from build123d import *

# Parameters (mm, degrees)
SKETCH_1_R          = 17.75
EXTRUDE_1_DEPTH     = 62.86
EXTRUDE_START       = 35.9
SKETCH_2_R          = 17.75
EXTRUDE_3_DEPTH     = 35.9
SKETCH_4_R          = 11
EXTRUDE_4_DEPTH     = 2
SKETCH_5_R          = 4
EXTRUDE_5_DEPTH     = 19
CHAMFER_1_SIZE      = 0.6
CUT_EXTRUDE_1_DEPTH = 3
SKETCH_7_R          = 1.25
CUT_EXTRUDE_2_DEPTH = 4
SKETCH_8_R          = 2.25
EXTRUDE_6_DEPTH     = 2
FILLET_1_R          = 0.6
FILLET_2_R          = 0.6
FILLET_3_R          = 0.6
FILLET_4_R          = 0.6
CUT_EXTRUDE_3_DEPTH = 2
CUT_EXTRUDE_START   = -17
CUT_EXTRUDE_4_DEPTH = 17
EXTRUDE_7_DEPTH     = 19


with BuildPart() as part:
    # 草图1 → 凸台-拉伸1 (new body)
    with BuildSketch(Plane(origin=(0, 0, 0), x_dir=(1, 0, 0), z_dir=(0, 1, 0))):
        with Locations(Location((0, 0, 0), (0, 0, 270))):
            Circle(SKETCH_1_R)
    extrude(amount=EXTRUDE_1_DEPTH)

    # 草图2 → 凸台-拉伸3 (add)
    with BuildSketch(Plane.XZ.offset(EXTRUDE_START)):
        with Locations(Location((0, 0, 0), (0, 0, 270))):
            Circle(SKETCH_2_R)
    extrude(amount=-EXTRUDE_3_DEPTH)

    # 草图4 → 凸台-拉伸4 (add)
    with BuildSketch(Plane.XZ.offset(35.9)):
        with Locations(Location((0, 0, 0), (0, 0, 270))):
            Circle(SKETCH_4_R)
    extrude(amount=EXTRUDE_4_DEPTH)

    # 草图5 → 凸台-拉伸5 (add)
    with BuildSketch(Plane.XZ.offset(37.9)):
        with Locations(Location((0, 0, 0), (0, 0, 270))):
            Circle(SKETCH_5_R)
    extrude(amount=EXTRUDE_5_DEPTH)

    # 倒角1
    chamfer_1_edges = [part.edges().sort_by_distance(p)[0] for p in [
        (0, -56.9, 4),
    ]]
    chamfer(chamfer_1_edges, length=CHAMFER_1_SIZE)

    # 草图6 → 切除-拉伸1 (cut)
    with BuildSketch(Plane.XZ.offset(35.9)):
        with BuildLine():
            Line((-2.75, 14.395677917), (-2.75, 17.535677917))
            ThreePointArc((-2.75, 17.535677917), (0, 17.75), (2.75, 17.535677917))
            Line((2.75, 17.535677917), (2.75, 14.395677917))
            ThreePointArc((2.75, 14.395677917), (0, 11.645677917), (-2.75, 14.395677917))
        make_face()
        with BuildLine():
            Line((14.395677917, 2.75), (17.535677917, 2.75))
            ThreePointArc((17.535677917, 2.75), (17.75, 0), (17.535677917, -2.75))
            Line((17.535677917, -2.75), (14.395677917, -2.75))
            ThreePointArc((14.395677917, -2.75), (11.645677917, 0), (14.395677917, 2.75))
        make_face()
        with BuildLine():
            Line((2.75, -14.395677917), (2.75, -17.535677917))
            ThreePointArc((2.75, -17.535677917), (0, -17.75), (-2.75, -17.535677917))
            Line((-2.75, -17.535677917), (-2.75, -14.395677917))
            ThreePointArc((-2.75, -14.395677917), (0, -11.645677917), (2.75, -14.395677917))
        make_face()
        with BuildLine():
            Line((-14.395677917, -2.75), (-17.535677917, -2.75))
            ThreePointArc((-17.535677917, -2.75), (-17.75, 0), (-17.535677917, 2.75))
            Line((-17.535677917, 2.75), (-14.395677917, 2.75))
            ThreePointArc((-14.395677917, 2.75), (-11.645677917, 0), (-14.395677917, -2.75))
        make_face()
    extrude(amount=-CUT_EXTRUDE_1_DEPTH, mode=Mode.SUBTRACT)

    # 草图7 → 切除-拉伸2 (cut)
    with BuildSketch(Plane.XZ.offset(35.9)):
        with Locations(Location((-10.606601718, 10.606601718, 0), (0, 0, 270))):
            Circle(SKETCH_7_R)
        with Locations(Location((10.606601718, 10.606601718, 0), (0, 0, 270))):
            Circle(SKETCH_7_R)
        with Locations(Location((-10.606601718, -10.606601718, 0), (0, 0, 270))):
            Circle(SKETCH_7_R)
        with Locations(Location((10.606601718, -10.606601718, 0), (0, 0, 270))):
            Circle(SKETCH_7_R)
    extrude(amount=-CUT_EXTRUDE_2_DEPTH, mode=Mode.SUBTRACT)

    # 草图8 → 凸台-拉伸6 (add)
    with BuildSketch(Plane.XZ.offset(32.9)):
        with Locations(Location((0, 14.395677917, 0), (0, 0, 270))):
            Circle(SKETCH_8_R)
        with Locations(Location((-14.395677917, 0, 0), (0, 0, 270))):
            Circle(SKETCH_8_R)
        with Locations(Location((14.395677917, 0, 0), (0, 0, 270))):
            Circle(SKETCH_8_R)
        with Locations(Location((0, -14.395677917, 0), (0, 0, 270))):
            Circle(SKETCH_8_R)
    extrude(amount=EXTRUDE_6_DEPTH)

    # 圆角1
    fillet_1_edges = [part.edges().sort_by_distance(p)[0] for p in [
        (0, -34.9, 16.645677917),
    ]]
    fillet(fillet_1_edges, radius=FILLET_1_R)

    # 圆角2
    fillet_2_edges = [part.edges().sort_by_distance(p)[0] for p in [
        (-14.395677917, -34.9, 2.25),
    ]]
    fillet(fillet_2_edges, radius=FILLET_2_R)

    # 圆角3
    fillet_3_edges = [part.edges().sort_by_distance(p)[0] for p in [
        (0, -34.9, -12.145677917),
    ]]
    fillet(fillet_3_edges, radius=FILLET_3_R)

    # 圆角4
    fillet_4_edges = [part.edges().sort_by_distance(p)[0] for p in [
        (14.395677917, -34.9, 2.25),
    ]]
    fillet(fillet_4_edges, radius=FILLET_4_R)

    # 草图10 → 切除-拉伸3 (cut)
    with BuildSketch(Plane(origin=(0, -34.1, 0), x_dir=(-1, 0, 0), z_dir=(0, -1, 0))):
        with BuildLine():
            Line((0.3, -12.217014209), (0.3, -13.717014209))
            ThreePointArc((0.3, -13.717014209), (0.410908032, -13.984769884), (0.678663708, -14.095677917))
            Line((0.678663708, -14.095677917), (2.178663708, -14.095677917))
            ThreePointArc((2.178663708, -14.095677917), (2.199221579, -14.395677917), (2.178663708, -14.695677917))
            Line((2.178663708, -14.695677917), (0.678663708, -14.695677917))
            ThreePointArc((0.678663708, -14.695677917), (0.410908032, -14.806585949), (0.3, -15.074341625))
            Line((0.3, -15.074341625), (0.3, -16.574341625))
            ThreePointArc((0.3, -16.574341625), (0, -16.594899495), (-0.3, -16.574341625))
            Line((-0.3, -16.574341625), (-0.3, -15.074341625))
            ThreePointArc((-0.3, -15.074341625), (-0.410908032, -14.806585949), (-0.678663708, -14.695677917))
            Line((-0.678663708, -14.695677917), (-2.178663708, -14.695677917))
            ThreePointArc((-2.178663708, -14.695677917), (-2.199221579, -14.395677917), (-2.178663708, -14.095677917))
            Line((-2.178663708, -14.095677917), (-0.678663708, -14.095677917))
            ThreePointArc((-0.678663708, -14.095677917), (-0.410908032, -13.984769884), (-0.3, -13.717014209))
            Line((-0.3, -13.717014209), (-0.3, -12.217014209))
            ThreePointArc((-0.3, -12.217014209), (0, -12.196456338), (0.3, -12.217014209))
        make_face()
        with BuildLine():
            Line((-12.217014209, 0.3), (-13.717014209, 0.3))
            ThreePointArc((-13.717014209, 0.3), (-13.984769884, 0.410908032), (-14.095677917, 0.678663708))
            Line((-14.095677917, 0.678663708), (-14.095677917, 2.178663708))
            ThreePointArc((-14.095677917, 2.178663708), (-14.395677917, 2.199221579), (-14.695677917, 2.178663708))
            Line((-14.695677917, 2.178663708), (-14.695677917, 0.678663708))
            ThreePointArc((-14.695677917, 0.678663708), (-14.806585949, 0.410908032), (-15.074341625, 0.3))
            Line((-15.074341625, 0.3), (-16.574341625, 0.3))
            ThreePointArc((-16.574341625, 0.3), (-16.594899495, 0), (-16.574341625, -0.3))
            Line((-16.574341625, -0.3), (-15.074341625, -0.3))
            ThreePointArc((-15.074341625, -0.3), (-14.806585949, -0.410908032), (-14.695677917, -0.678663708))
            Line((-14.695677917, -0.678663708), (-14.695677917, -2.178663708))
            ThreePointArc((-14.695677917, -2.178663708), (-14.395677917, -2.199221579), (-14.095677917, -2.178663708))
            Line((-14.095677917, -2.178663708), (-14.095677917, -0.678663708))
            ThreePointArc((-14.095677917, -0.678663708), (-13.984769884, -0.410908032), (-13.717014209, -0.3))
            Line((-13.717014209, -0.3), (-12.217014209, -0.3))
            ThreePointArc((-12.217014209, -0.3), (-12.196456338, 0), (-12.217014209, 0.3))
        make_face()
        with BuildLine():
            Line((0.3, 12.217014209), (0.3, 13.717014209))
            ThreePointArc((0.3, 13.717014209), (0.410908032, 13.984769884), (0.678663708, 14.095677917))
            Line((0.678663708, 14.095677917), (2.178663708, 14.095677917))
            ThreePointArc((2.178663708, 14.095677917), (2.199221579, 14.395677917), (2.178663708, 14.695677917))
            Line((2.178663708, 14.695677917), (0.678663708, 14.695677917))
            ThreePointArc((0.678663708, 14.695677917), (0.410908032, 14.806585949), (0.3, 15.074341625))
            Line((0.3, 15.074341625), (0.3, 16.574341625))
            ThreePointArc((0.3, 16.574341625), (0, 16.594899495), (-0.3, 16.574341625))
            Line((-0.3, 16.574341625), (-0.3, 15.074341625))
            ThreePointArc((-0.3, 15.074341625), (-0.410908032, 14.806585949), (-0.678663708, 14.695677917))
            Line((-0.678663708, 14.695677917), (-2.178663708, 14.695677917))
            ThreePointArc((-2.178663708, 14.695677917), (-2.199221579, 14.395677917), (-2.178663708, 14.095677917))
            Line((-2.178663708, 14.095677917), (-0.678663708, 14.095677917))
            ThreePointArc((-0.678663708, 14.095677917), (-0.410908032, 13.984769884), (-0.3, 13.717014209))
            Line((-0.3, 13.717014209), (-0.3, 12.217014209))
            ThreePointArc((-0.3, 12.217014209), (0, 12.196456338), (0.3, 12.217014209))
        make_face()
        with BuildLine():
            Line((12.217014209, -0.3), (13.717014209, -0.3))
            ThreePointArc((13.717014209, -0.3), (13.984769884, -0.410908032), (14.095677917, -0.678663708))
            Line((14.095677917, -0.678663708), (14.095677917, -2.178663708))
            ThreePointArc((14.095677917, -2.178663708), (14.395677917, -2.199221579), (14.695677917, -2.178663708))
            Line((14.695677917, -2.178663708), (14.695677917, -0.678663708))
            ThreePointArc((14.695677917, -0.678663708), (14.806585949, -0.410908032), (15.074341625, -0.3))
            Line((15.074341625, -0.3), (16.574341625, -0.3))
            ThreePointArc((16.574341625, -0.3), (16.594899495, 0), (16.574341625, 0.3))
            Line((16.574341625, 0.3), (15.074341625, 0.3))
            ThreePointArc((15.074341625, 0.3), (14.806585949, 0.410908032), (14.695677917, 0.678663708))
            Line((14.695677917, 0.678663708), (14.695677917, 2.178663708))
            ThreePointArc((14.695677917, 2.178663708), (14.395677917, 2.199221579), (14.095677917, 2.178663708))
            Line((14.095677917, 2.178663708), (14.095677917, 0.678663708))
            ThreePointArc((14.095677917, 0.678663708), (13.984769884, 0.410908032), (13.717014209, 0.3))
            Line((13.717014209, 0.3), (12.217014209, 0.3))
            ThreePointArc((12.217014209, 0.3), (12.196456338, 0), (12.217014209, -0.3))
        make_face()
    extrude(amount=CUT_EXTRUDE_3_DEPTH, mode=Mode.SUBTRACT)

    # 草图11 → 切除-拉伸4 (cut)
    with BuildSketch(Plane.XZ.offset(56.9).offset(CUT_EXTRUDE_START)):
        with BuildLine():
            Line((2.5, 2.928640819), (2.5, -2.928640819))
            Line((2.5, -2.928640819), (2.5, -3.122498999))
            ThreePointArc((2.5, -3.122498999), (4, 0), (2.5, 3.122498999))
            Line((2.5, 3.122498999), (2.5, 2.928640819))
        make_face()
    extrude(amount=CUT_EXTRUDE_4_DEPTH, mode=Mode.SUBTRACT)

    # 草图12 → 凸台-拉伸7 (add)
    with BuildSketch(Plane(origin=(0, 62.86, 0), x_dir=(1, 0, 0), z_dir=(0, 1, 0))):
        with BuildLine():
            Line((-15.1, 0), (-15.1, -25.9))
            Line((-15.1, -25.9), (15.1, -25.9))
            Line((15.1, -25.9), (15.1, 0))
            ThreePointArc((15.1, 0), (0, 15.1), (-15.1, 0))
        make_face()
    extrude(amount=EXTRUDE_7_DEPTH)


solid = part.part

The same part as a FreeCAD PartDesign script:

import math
import FreeCAD as App
import Part
import Sketcher

V = App.Vector
Q = App.Units.Quantity


def edges_at(feature, points):
    """Names of the edges that pass closest to the given points."""
    edges = feature.Shape.Edges
    near = lambda p: min(range(len(edges)), key=lambda i: edges[i].distToShape(Part.Vertex(*p))[0])
    return sorted({f"Edge{near(p) + 1}" for p in points})

doc = App.newDocument("Part")
body = doc.addObject("PartDesign::Body", "Body")

sketch1 = body.newObject("Sketcher::SketchObject", "Sketch")
sketch1.AttachmentSupport = (doc.getObject("XZ_Plane"), [""])
sketch1.MapMode = "FlatFace"
sketch1.addGeometry(Part.Circle(V(0, 0, 0), V(0, 0, 1), 17.75), False)
sketch1.addConstraint([
    Sketcher.Constraint("Coincident", 0, 3, -1, 1),
    Sketcher.Constraint("Diameter", 0, Q("35.5 mm")),
])
pad1 = body.newObject("PartDesign::Pad", "Pad")
pad1.Profile = sketch1
pad1.Length = 62.86
pad1.Reversed = True

sketch2 = body.newObject("Sketcher::SketchObject", "Sketch001")
sketch2.AttachmentSupport = (doc.getObject("XZ_Plane"), [""])
sketch2.MapMode = "FlatFace"
sketch2.AttachmentOffset = App.Placement(V(0, 0, 35.9), App.Rotation())
sketch2.addGeometry(Part.Circle(V(0, 0, 0), V(0, 0, 1), 17.75), False)
sketch2.addConstraint([
    Sketcher.Constraint("Coincident", 0, 3, -1, 1),
    Sketcher.Constraint("Diameter", 0, Q("35.5 mm")),
])
pad2 = body.newObject("PartDesign::Pad", "Pad001")
pad2.Profile = sketch2
pad2.Length = 35.9
pad2.Reversed = True

sketch3 = body.newObject("Sketcher::SketchObject", "Sketch002")
sketch3.AttachmentSupport = (doc.getObject("XZ_Plane"), [""])
sketch3.MapMode = "FlatFace"
sketch3.AttachmentOffset = App.Placement(V(0, 0, 35.9), App.Rotation())
sketch3.addGeometry(Part.Circle(V(0, 0, 0), V(0, 0, 1), 11), False)
sketch3.addConstraint([
    Sketcher.Constraint("Coincident", 0, 3, -1, 1),
    Sketcher.Constraint("Diameter", 0, Q("22 mm")),
])
pad3 = body.newObject("PartDesign::Pad", "Pad002")
pad3.Profile = sketch3
pad3.Length = 2

sketch4 = body.newObject("Sketcher::SketchObject", "Sketch003")
sketch4.AttachmentSupport = (doc.getObject("XZ_Plane"), [""])
sketch4.MapMode = "FlatFace"
sketch4.AttachmentOffset = App.Placement(V(0, 0, 37.9), App.Rotation())
sketch4.addGeometry(Part.Circle(V(0, 0, 0), V(0, 0, 1), 4), False)
sketch4.addConstraint([
    Sketcher.Constraint("Coincident", 0, 3, -1, 1),
    Sketcher.Constraint("Diameter", 0, Q("8 mm")),
])
pad4 = body.newObject("PartDesign::Pad", "Pad003")
pad4.Profile = sketch4
pad4.Length = 19
doc.recompute()

chamfer = body.newObject("PartDesign::Chamfer", "Chamfer")
chamfer.Base = (pad4, edges_at(pad4, [(0, -56.9, 4)]))
chamfer.Size = 0.6

sketch5 = body.newObject("Sketcher::SketchObject", "Sketch004")
sketch5.AttachmentSupport = (doc.getObject("XZ_Plane"), [""])
sketch5.MapMode = "FlatFace"
sketch5.AttachmentOffset = App.Placement(V(0, 0, 35.9), App.Rotation())
sketch5.addGeometry([
    Part.LineSegment(V(-2.75, 17.535678, 0), V(-2.75, 14.395678, 0)),
    Part.ArcOfCircle(Part.Circle(V(0, 14.395678, 0), V(0, 0, 1), 2.75), math.radians(180), math.radians(360)),
    Part.LineSegment(V(2.75, 14.395678, 0), V(2.75, 17.535678, 0)),
    Part.ArcOfCircle(Part.Circle(V(0, 0, 0), V(0, 0, 1), 17.75), math.radians(81.087288), math.radians(98.912712)),
    Part.LineSegment(V(17.535678, 2.75, 0), V(14.395678, 2.75, 0)),
    Part.ArcOfCircle(Part.Circle(V(14.395678, 0, 0), V(0, 0, 1), 2.75), math.radians(90), math.radians(270)),
    Part.LineSegment(V(14.395678, -2.75, 0), V(17.535678, -2.75, 0)),
    Part.ArcOfCircle(Part.Circle(V(0, 0, 0), V(0, 0, 1), 17.75), math.radians(-8.912712), math.radians(8.912712)),
    Part.LineSegment(V(2.75, -17.535678, 0), V(2.75, -14.395678, 0)),
    Part.ArcOfCircle(Part.Circle(V(0, -14.395678, 0), V(0, 0, 1), 2.75), math.radians(0), math.radians(180)),
    Part.LineSegment(V(-2.75, -14.395678, 0), V(-2.75, -17.535678, 0)),
    Part.ArcOfCircle(Part.Circle(V(0, 0, 0), V(0, 0, 1), 17.75), math.radians(-98.912712), math.radians(-81.087288)),
    Part.LineSegment(V(-17.535678, -2.75, 0), V(-14.395678, -2.75, 0)),
    Part.ArcOfCircle(Part.Circle(V(-14.395678, 0, 0), V(0, 0, 1), 2.75), math.radians(-90), math.radians(90)),
    Part.LineSegment(V(-14.395678, 2.75, 0), V(-17.535678, 2.75, 0)),
    Part.ArcOfCircle(Part.Circle(V(0, 0, 0), V(0, 0, 1), 17.75), math.radians(171.087288), math.radians(188.912712)),
], False)
sketch5.addConstraint([
    Sketcher.Constraint("Tangent", 0, 2, 1, 1),
    Sketcher.Constraint("Tangent", 1, 2, 2, 1),
    Sketcher.Constraint("Coincident", 2, 2, 3, 1),
    Sketcher.Constraint("Coincident", 3, 2, 0, 1),
    Sketcher.Constraint("Tangent", 4, 2, 5, 1),
    Sketcher.Constraint("Tangent", 5, 2, 6, 1),
    Sketcher.Constraint("Coincident", 6, 2, 7, 1),
    Sketcher.Constraint("Coincident", 7, 2, 4, 1),
    Sketcher.Constraint("Tangent", 8, 2, 9, 1),
    Sketcher.Constraint("Tangent", 9, 2, 10, 1),
    Sketcher.Constraint("Coincident", 10, 2, 11, 1),
    Sketcher.Constraint("Coincident", 11, 2, 8, 1),
    Sketcher.Constraint("Tangent", 12, 2, 13, 1),
    Sketcher.Constraint("Tangent", 13, 2, 14, 1),
    Sketcher.Constraint("Coincident", 14, 2, 15, 1),
    Sketcher.Constraint("Coincident", 15, 2, 12, 1),
    Sketcher.Constraint("Vertical", 0),
    Sketcher.Constraint("Vertical", 2),
    Sketcher.Constraint("Horizontal", 4),
    Sketcher.Constraint("Horizontal", 6),
    Sketcher.Constraint("Vertical", 8),
    Sketcher.Constraint("Vertical", 10),
    Sketcher.Constraint("Horizontal", 12),
    Sketcher.Constraint("Horizontal", 14),
    Sketcher.Constraint("Coincident", 3, 3, -1, 1),
    Sketcher.Constraint("Coincident", 7, 3, -1, 1),
    Sketcher.Constraint("Coincident", 11, 3, -1, 1),
    Sketcher.Constraint("Coincident", 15, 3, -1, 1),
    Sketcher.Constraint("Equal", 1, 5),
    Sketcher.Constraint("Equal", 3, 7),
    Sketcher.Constraint("Equal", 5, 9),
    Sketcher.Constraint("Equal", 7, 11),
    Sketcher.Constraint("Equal", 9, 13),
    Sketcher.Constraint("Equal", 11, 15),
    Sketcher.Constraint("Symmetric", 1, 3, 9, 3, -1, 1),
    Sketcher.Constraint("Symmetric", 5, 3, 13, 3, -1, 1),
    Sketcher.Constraint("PointOnObject", 1, 3, -2),
    Sketcher.Constraint("PointOnObject", 5, 3, -1),
    Sketcher.Constraint("Equal", 14, 0),
    Sketcher.Constraint("Radius", 1, Q("2.75 mm")),
    Sketcher.Constraint("Radius", 3, Q("17.75 mm")),
    Sketcher.Constraint("DistanceX", 4, 2, 4, 1, Q("3.14 mm")),
])
pocket1 = body.newObject("PartDesign::Pocket", "Pocket")
pocket1.Profile = sketch5
pocket1.Length = 3

sketch6 = body.newObject("Sketcher::SketchObject", "Sketch005")
sketch6.AttachmentSupport = (doc.getObject("XZ_Plane"), [""])
sketch6.MapMode = "FlatFace"
sketch6.AttachmentOffset = App.Placement(V(0, 0, 35.9), App.Rotation())
sketch6.addGeometry([
    Part.Circle(V(-10.606602, 10.606602, 0), V(0, 0, 1), 1.25),
    Part.Circle(V(10.606602, 10.606602, 0), V(0, 0, 1), 1.25),
    Part.Circle(V(-10.606602, -10.606602, 0), V(0, 0, 1), 1.25),
    Part.Circle(V(10.606602, -10.606602, 0), V(0, 0, 1), 1.25),
], False)
sketch6.addConstraint([
    Sketcher.Constraint("Equal", 0, 1),
    Sketcher.Constraint("Equal", 1, 2),
    Sketcher.Constraint("Equal", 2, 3),
    Sketcher.Constraint("Symmetric", 1, 3, 2, 3, -1, 1),
    Sketcher.Constraint("Symmetric", 0, 3, 3, 3, -1, 1),
    Sketcher.Constraint("Symmetric", 0, 3, 1, 3, -2),
    Sketcher.Constraint("Diameter", 0, Q("2.5 mm")),
    Sketcher.Constraint("DistanceX", 0, 3, -1, 1, Q("10.606602 mm")),
    Sketcher.Constraint("DistanceY", -1, 1, 0, 3, Q("10.606602 mm")),
])
pocket2 = body.newObject("PartDesign::Pocket", "Pocket001")
pocket2.Profile = sketch6
pocket2.Length = 4

sketch7 = body.newObject("Sketcher::SketchObject", "Sketch006")
sketch7.AttachmentSupport = (doc.getObject("XZ_Plane"), [""])
sketch7.MapMode = "FlatFace"
sketch7.AttachmentOffset = App.Placement(V(0, 0, 32.9), App.Rotation())
sketch7.addGeometry([
    Part.Circle(V(0, 14.395678, 0), V(0, 0, 1), 2.25),
    Part.Circle(V(-14.395678, 0, 0), V(0, 0, 1), 2.25),
    Part.Circle(V(14.395678, 0, 0), V(0, 0, 1), 2.25),
    Part.Circle(V(0, -14.395678, 0), V(0, 0, 1), 2.25),
], False)
sketch7.addConstraint([
    Sketcher.Constraint("Equal", 0, 1),
    Sketcher.Constraint("Equal", 1, 2),
    Sketcher.Constraint("Equal", 2, 3),
    Sketcher.Constraint("Symmetric", 1, 3, 2, 3, -1, 1),
    Sketcher.Constraint("Symmetric", 0, 3, 3, 3, -1, 1),
    Sketcher.Constraint("PointOnObject", 0, 3, -2),
    Sketcher.Constraint("PointOnObject", 1, 3, -1),
    Sketcher.Constraint("Diameter", 0, Q("4.5 mm")),
    Sketcher.Constraint("DistanceY", -1, 1, 0, 3, Q("14.395678 mm")),
    Sketcher.Constraint("DistanceX", 1, 3, -1, 1, Q("14.395678 mm")),
])
pad5 = body.newObject("PartDesign::Pad", "Pad004")
pad5.Profile = sketch7
pad5.Length = 2
doc.recompute()

fillet = body.newObject("PartDesign::Fillet", "Fillet")
fillet.Base = (pad5, edges_at(pad5, [(0, -34.9, 16.646)]))
fillet.Radius = 0.6
doc.recompute()

fillet2 = body.newObject("PartDesign::Fillet", "Fillet001")
fillet2.Base = (fillet, edges_at(fillet, [(-14.396, -34.9, 2.25)]))
fillet2.Radius = 0.6
doc.recompute()

fillet3 = body.newObject("PartDesign::Fillet", "Fillet002")
fillet3.Base = (fillet2, edges_at(fillet2, [(0, -34.9, -12.146)]))
fillet3.Radius = 0.6
doc.recompute()

fillet4 = body.newObject("PartDesign::Fillet", "Fillet003")
fillet4.Base = (fillet3, edges_at(fillet3, [(14.396, -34.9, 2.25)]))
fillet4.Radius = 0.6

sketch8 = body.newObject("Sketcher::SketchObject", "Sketch007")
sketch8.AttachmentSupport = (doc.getObject("XZ_Plane"), [""])
sketch8.MapMode = "FlatFace"
sketch8.AttachmentOffset = App.Placement(V(0, 0, 34.1), App.Rotation())
sketch8.addGeometry([
    Part.LineSegment(V(-0.3, 13.717014, 0), V(-0.3, 12.217014, 0)),
    Part.ArcOfCircle(Part.Circle(V(0, 14.395678, 0), V(0, 0, 1), 2.199222), math.radians(-97.840271), math.radians(-82.159729)),
    Part.LineSegment(V(0.3, 12.217014, 0), V(0.3, 13.717014, 0)),
    Part.ArcOfCircle(Part.Circle(V(0.678664, 13.717014, 0), V(0, 0, 1), 0.378664), math.radians(90), math.radians(180)),
    Part.LineSegment(V(0.678664, 14.095678, 0), V(2.178664, 14.095678, 0)),
    Part.ArcOfCircle(Part.Circle(V(0, 14.395678, 0), V(0, 0, 1), 2.199222), math.radians(-7.840271), math.radians(7.840271)),
    Part.LineSegment(V(2.178664, 14.695678, 0), V(0.678664, 14.695678, 0)),
    Part.ArcOfCircle(Part.Circle(V(0.678664, 15.074342, 0), V(0, 0, 1), 0.378664), math.radians(180), math.radians(270)),
    Part.LineSegment(V(0.3, 15.074342, 0), V(0.3, 16.574342, 0)),
    Part.ArcOfCircle(Part.Circle(V(0, 14.395678, 0), V(0, 0, 1), 2.199222), math.radians(82.159729), math.radians(97.840271)),
    Part.LineSegment(V(-0.3, 16.574342, 0), V(-0.3, 15.074342, 0)),
    Part.ArcOfCircle(Part.Circle(V(-0.678664, 15.074342, 0), V(0, 0, 1), 0.378664), math.radians(-90), math.radians(0)),
    Part.LineSegment(V(-0.678664, 14.695678, 0), V(-2.178664, 14.695678, 0)),
    Part.ArcOfCircle(Part.Circle(V(0, 14.395678, 0), V(0, 0, 1), 2.199222), math.radians(172.159729), math.radians(187.840271)),
    Part.LineSegment(V(-2.178664, 14.095678, 0), V(-0.678664, 14.095678, 0)),
    Part.ArcOfCircle(Part.Circle(V(-0.678664, 13.717014, 0), V(0, 0, 1), 0.378664), math.radians(0), math.radians(90)),
    Part.LineSegment(V(12.217014, -0.3, 0), V(13.717014, -0.3, 0)),
    Part.ArcOfCircle(Part.Circle(V(13.717014, -0.678664, 0), V(0, 0, 1), 0.378664), math.radians(0), math.radians(90)),
    Part.LineSegment(V(14.095678, -0.678664, 0), V(14.095678, -2.178664, 0)),
    Part.ArcOfCircle(Part.Circle(V(14.395678, 0, 0), V(0, 0, 1), 2.199222), math.radians(-97.840271), math.radians(-82.159729)),
    Part.LineSegment(V(14.695678, -2.178664, 0), V(14.695678, -0.678664, 0)),
    Part.ArcOfCircle(Part.Circle(V(15.074342, -0.678664, 0), V(0, 0, 1), 0.378664), math.radians(90), math.radians(180)),
    Part.LineSegment(V(15.074342, -0.3, 0), V(16.574342, -0.3, 0)),
    Part.ArcOfCircle(Part.Circle(V(14.395678, 0, 0), V(0, 0, 1), 2.199222), math.radians(-7.840271), math.radians(7.840271)),
    Part.LineSegment(V(16.574342, 0.3, 0), V(15.074342, 0.3, 0)),
    Part.ArcOfCircle(Part.Circle(V(15.074342, 0.678664, 0), V(0, 0, 1), 0.378664), math.radians(180), math.radians(270)),
    Part.LineSegment(V(14.695678, 0.678664, 0), V(14.695678, 2.178664, 0)),
    Part.ArcOfCircle(Part.Circle(V(14.395678, 0, 0), V(0, 0, 1), 2.199222), math.radians(82.159729), math.radians(97.840271)),
    Part.LineSegment(V(14.095678, 2.178664, 0), V(14.095678, 0.678664, 0)),
    Part.ArcOfCircle(Part.Circle(V(13.717014, 0.678664, 0), V(0, 0, 1), 0.378664), math.radians(-90), math.radians(0)),
    Part.LineSegment(V(13.717014, 0.3, 0), V(12.217014, 0.3, 0)),
    Part.ArcOfCircle(Part.Circle(V(14.395678, 0, 0), V(0, 0, 1), 2.199222), math.radians(172.159729), math.radians(187.840271)),
    Part.LineSegment(V(-0.3, -12.217014, 0), V(-0.3, -13.717014, 0)),
    Part.ArcOfCircle(Part.Circle(V(-0.678664, -13.717014, 0), V(0, 0, 1), 0.378664), math.radians(-90), math.radians(0)),
    Part.LineSegment(V(-0.678664, -14.095678, 0), V(-2.178664, -14.095678, 0)),
    Part.ArcOfCircle(Part.Circle(V(0, -14.395678, 0), V(0, 0, 1), 2.199222), math.radians(172.159729), math.radians(187.840271)),
    Part.LineSegment(V(-2.178664, -14.695678, 0), V(-0.678664, -14.695678, 0)),
    Part.ArcOfCircle(Part.Circle(V(-0.678664, -15.074342, 0), V(0, 0, 1), 0.378664), math.radians(0), math.radians(90)),
    Part.LineSegment(V(-0.3, -15.074342, 0), V(-0.3, -16.574342, 0)),
    Part.ArcOfCircle(Part.Circle(V(0, -14.395678, 0), V(0, 0, 1), 2.199222), math.radians(-97.840271), math.radians(-82.159729)),
    Part.LineSegment(V(0.3, -16.574342, 0), V(0.3, -15.074342, 0)),
    Part.ArcOfCircle(Part.Circle(V(0.678664, -15.074342, 0), V(0, 0, 1), 0.378664), math.radians(90), math.radians(180)),
    Part.LineSegment(V(0.678664, -14.695678, 0), V(2.178664, -14.695678, 0)),
    Part.ArcOfCircle(Part.Circle(V(0, -14.395678, 0), V(0, 0, 1), 2.199222), math.radians(-7.840271), math.radians(7.840271)),
    Part.LineSegment(V(2.178664, -14.095678, 0), V(0.678664, -14.095678, 0)),
    Part.ArcOfCircle(Part.Circle(V(0.678664, -13.717014, 0), V(0, 0, 1), 0.378664), math.radians(-180), math.radians(-90)),
    Part.LineSegment(V(0.3, -13.717014, 0), V(0.3, -12.217014, 0)),
    Part.ArcOfCircle(Part.Circle(V(0, -14.395678, 0), V(0, 0, 1), 2.199222), math.radians(82.159729), math.radians(97.840271)),
    Part.LineSegment(V(-12.217014, 0.3, 0), V(-13.717014, 0.3, 0)),
    Part.ArcOfCircle(Part.Circle(V(-13.717014, 0.678664, 0), V(0, 0, 1), 0.378664), math.radians(-180), math.radians(-90)),
    Part.LineSegment(V(-14.095678, 0.678664, 0), V(-14.095678, 2.178664, 0)),
    Part.ArcOfCircle(Part.Circle(V(-14.395678, 0, 0), V(0, 0, 1), 2.199222), math.radians(82.159729), math.radians(97.840271)),
    Part.LineSegment(V(-14.695678, 2.178664, 0), V(-14.695678, 0.678664, 0)),
    Part.ArcOfCircle(Part.Circle(V(-15.074342, 0.678664, 0), V(0, 0, 1), 0.378664), math.radians(-90), math.radians(0)),
    Part.LineSegment(V(-15.074342, 0.3, 0), V(-16.574342, 0.3, 0)),
    Part.ArcOfCircle(Part.Circle(V(-14.395678, 0, 0), V(0, 0, 1), 2.199222), math.radians(172.159729), math.radians(187.840271)),
    Part.LineSegment(V(-16.574342, -0.3, 0), V(-15.074342, -0.3, 0)),
    Part.ArcOfCircle(Part.Circle(V(-15.074342, -0.678664, 0), V(0, 0, 1), 0.378664), math.radians(0), math.radians(90)),
    Part.LineSegment(V(-14.695678, -0.678664, 0), V(-14.695678, -2.178664, 0)),
    Part.ArcOfCircle(Part.Circle(V(-14.395678, 0, 0), V(0, 0, 1), 2.199222), math.radians(-97.840271), math.radians(-82.159729)),
    Part.LineSegment(V(-14.095678, -2.178664, 0), V(-14.095678, -0.678664, 0)),
    Part.ArcOfCircle(Part.Circle(V(-13.717014, -0.678664, 0), V(0, 0, 1), 0.378664), math.radians(90), math.radians(180)),
    Part.LineSegment(V(-13.717014, -0.3, 0), V(-12.217014, -0.3, 0)),
    Part.ArcOfCircle(Part.Circle(V(-14.395678, 0, 0), V(0, 0, 1), 2.199222), math.radians(-7.840271), math.radians(7.840271)),
], False)
sketch8.addConstraint([
    Sketcher.Constraint("Coincident", 0, 2, 1, 1),
    Sketcher.Constraint("Coincident", 1, 2, 2, 1),
    Sketcher.Constraint("Tangent", 2, 2, 3, 2),
    Sketcher.Constraint("Tangent", 3, 1, 4, 1),
    Sketcher.Constraint("Coincident", 4, 2, 5, 1),
    Sketcher.Constraint("Coincident", 5, 2, 6, 1),
    Sketcher.Constraint("Tangent", 6, 2, 7, 2),
    Sketcher.Constraint("Tangent", 7, 1, 8, 1),
    Sketcher.Constraint("Coincident", 8, 2, 9, 1),
    Sketcher.Constraint("Coincident", 9, 2, 10, 1),
    Sketcher.Constraint("Tangent", 10, 2, 11, 2),
    Sketcher.Constraint("Tangent", 11, 1, 12, 1),
    Sketcher.Constraint("Coincident", 12, 2, 13, 1),
    Sketcher.Constraint("Coincident", 13, 2, 14, 1),
    Sketcher.Constraint("Tangent", 14, 2, 15, 2),
    Sketcher.Constraint("Tangent", 15, 1, 0, 1),
    Sketcher.Constraint("Tangent", 16, 2, 17, 2),
    Sketcher.Constraint("Tangent", 17, 1, 18, 1),
    Sketcher.Constraint("Coincident", 18, 2, 19, 1),
    Sketcher.Constraint("Coincident", 19, 2, 20, 1),
    Sketcher.Constraint("Tangent", 20, 2, 21, 2),
    Sketcher.Constraint("Tangent", 21, 1, 22, 1),
    Sketcher.Constraint("Coincident", 22, 2, 23, 1),
    Sketcher.Constraint("Coincident", 23, 2, 24, 1),
    Sketcher.Constraint("Tangent", 24, 2, 25, 2),
    Sketcher.Constraint("Tangent", 25, 1, 26, 1),
    Sketcher.Constraint("Coincident", 26, 2, 27, 1),
    Sketcher.Constraint("Coincident", 27, 2, 28, 1),
    Sketcher.Constraint("Tangent", 28, 2, 29, 2),
    Sketcher.Constraint("Tangent", 29, 1, 30, 1),
    Sketcher.Constraint("Coincident", 30, 2, 31, 1),
    Sketcher.Constraint("Coincident", 31, 2, 16, 1),
    Sketcher.Constraint("Tangent", 32, 2, 33, 2),
    Sketcher.Constraint("Tangent", 33, 1, 34, 1),
    Sketcher.Constraint("Coincident", 34, 2, 35, 1),
    Sketcher.Constraint("Coincident", 35, 2, 36, 1),
    Sketcher.Constraint("Tangent", 36, 2, 37, 2),
    Sketcher.Constraint("Tangent", 37, 1, 38, 1),
    Sketcher.Constraint("Coincident", 38, 2, 39, 1),
    Sketcher.Constraint("Coincident", 39, 2, 40, 1),
    Sketcher.Constraint("Tangent", 40, 2, 41, 2),
    Sketcher.Constraint("Tangent", 41, 1, 42, 1),
    Sketcher.Constraint("Coincident", 42, 2, 43, 1),
    Sketcher.Constraint("Coincident", 43, 2, 44, 1),
    Sketcher.Constraint("Tangent", 44, 2, 45, 2),
    Sketcher.Constraint("Tangent", 45, 1, 46, 1),
    Sketcher.Constraint("Coincident", 46, 2, 47, 1),
    Sketcher.Constraint("Coincident", 47, 2, 32, 1),
    Sketcher.Constraint("Tangent", 48, 2, 49, 2),
    Sketcher.Constraint("Tangent", 49, 1, 50, 1),
    Sketcher.Constraint("Coincident", 50, 2, 51, 1),
    Sketcher.Constraint("Coincident", 51, 2, 52, 1),
    Sketcher.Constraint("Tangent", 52, 2, 53, 2),
    Sketcher.Constraint("Tangent", 53, 1, 54, 1),
    Sketcher.Constraint("Coincident", 54, 2, 55, 1),
    Sketcher.Constraint("Coincident", 55, 2, 56, 1),
    Sketcher.Constraint("Tangent", 56, 2, 57, 2),
    Sketcher.Constraint("Tangent", 57, 1, 58, 1),
    Sketcher.Constraint("Coincident", 58, 2, 59, 1),
    Sketcher.Constraint("Coincident", 59, 2, 60, 1),
    Sketcher.Constraint("Tangent", 60, 2, 61, 2),
    Sketcher.Constraint("Tangent", 61, 1, 62, 1),
    Sketcher.Constraint("Coincident", 62, 2, 63, 1),
    Sketcher.Constraint("Coincident", 63, 2, 48, 1),
    Sketcher.Constraint("Vertical", 0),
    Sketcher.Constraint("Vertical", 2),
    Sketcher.Constraint("Horizontal", 4),
    Sketcher.Constraint("Horizontal", 6),
    Sketcher.Constraint("Vertical", 8),
    Sketcher.Constraint("Vertical", 10),
    Sketcher.Constraint("Horizontal", 12),
    Sketcher.Constraint("Horizontal", 14),
    Sketcher.Constraint("Horizontal", 16),
    Sketcher.Constraint("Vertical", 18),
    Sketcher.Constraint("Vertical", 20),
    Sketcher.Constraint("Horizontal", 22),
    Sketcher.Constraint("Horizontal", 24),
    Sketcher.Constraint("Vertical", 26),
    Sketcher.Constraint("Vertical", 28),
    Sketcher.Constraint("Horizontal", 30),
    Sketcher.Constraint("Vertical", 32),
    Sketcher.Constraint("Horizontal", 34),
    Sketcher.Constraint("Horizontal", 36),
    Sketcher.Constraint("Vertical", 38),
    Sketcher.Constraint("Vertical", 40),
    Sketcher.Constraint("Horizontal", 42),
    Sketcher.Constraint("Horizontal", 44),
    Sketcher.Constraint("Vertical", 46),
    Sketcher.Constraint("Horizontal", 48),
    Sketcher.Constraint("Vertical", 50),
    Sketcher.Constraint("Vertical", 52),
    Sketcher.Constraint("Horizontal", 54),
    Sketcher.Constraint("Horizontal", 56),
    Sketcher.Constraint("Vertical", 58),
    Sketcher.Constraint("Vertical", 60),
    Sketcher.Constraint("Horizontal", 62),
    Sketcher.Constraint("Coincident", 5, 3, 1, 3),
    Sketcher.Constraint("Coincident", 9, 3, 1, 3),
    Sketcher.Constraint("Coincident", 13, 3, 1, 3),
    Sketcher.Constraint("Coincident", 23, 3, 19, 3),
    Sketcher.Constraint("Coincident", 27, 3, 19, 3),
    Sketcher.Constraint("Coincident", 31, 3, 19, 3),
    Sketcher.Constraint("Coincident", 39, 3, 35, 3),
    Sketcher.Constraint("Coincident", 43, 3, 35, 3),
    Sketcher.Constraint("Coincident", 47, 3, 35, 3),
    Sketcher.Constraint("Coincident", 55, 3, 51, 3),
    Sketcher.Constraint("Coincident", 59, 3, 51, 3),
    Sketcher.Constraint("Coincident", 63, 3, 51, 3),
    Sketcher.Constraint("Equal", 1, 5),
    Sketcher.Constraint("Equal", 3, 7),
    Sketcher.Constraint("Equal", 5, 9),
    Sketcher.Constraint("Equal", 7, 11),
    Sketcher.Constraint("Equal", 9, 13),
    Sketcher.Constraint("Equal", 11, 15),
    Sketcher.Constraint("Equal", 15, 17),
    Sketcher.Constraint("Equal", 13, 19),
    Sketcher.Constraint("Equal", 17, 21),
    Sketcher.Constraint("Equal", 19, 23),
    Sketcher.Constraint("Equal", 21, 25),
    Sketcher.Constraint("Equal", 23, 27),
    Sketcher.Constraint("Equal", 25, 29),
    Sketcher.Constraint("Equal", 27, 31),
    Sketcher.Constraint("Equal", 29, 33),
    Sketcher.Constraint("Equal", 31, 35),
    Sketcher.Constraint("Equal", 33, 37),
    Sketcher.Constraint("Equal", 35, 39),
    Sketcher.Constraint("Equal", 37, 41),
    Sketcher.Constraint("Equal", 39, 43),
    Sketcher.Constraint("Equal", 41, 45),
    Sketcher.Constraint("Equal", 43, 47),
    Sketcher.Constraint("Equal", 45, 49),
    Sketcher.Constraint("Equal", 47, 51),
    Sketcher.Constraint("Equal", 49, 53),
    Sketcher.Constraint("Equal", 51, 55),
    Sketcher.Constraint("Equal", 53, 57),
    Sketcher.Constraint("Equal", 55, 59),
    Sketcher.Constraint("Equal", 57, 61),
    Sketcher.Constraint("Equal", 59, 63),
    Sketcher.Constraint("Symmetric", 3, 3, 33, 3, -1, 1),
    Sketcher.Constraint("Symmetric", 1, 3, 35, 3, -1, 1),
    Sketcher.Constraint("Symmetric", 7, 3, 37, 3, -1, 1),
    Sketcher.Constraint("Symmetric", 11, 3, 41, 3, -1, 1),
    Sketcher.Constraint("Symmetric", 15, 3, 45, 3, -1, 1),
    Sketcher.Constraint("Symmetric", 17, 3, 49, 3, -1, 1),
    Sketcher.Constraint("Symmetric", 19, 3, 51, 3, -1, 1),
    Sketcher.Constraint("Symmetric", 21, 3, 53, 3, -1, 1),
    Sketcher.Constraint("Symmetric", 25, 3, 57, 3, -1, 1),
    Sketcher.Constraint("Symmetric", 29, 3, 61, 3, -1, 1),
    Sketcher.Constraint("Symmetric", 7, 3, 11, 3, -2),
    Sketcher.Constraint("Symmetric", 3, 3, 15, 3, -2),
    Sketcher.Constraint("Symmetric", 29, 3, 49, 3, -2),
    Sketcher.Constraint("Symmetric", 25, 3, 53, 3, -2),
    Sketcher.Constraint("PointOnObject", 1, 3, -2),
    Sketcher.Constraint("PointOnObject", 19, 3, -1),
    Sketcher.Constraint("Horizontal", 17, 3, 21, 3),
    Sketcher.Constraint("Horizontal", 18, 2, 19, 2),
    Sketcher.Constraint("Vertical", 3, 3, 7, 3),
    Sketcher.Constraint("Vertical", 4, 2, 5, 2),
    Sketcher.Constraint("Equal", 14, 16),
    Sketcher.Constraint("Equal", 62, 0),
    Sketcher.Constraint("Equal", 10, 18),
    Sketcher.Constraint("DistanceX", 4, 1, 4, 2, Q("1.5 mm")),
    Sketcher.Constraint("DistanceX", 0, 2, -1, 1, Q("0.3 mm")),
    Sketcher.Constraint("Radius", 1, Q("2.199222 mm")),
    Sketcher.Constraint("DistanceY", -1, 1, 7, 3, Q("15.074342 mm")),
    Sketcher.Constraint("DistanceX", -1, 1, 21, 3, Q("15.074342 mm")),
])
pocket3 = body.newObject("PartDesign::Pocket", "Pocket002")
pocket3.Profile = sketch8
pocket3.Length = 2
pocket3.Reversed = True

sketch9 = body.newObject("Sketcher::SketchObject", "Sketch008")
sketch9.AttachmentSupport = (doc.getObject("XZ_Plane"), [""])
sketch9.MapMode = "FlatFace"
sketch9.AttachmentOffset = App.Placement(V(0, 0, 39.9), App.Rotation())
sketch9.addGeometry([
    Part.ArcOfCircle(Part.Circle(V(0, 0, 0), V(0, 0, 1), 4), math.radians(-51.317813), math.radians(51.317813)),
    Part.LineSegment(V(2.5, 3.122499, 0), V(2.5, -3.122499, 0)),
], False)
sketch9.addConstraint([
    Sketcher.Constraint("Coincident", 0, 1, 1, 2),
    Sketcher.Constraint("Coincident", 1, 1, 0, 2),
    Sketcher.Constraint("Vertical", 1),
    Sketcher.Constraint("Coincident", 0, 3, -1, 1),
    Sketcher.Constraint("Radius", 0, Q("4 mm")),
    Sketcher.Constraint("DistanceX", -1, 1, 0, 1, Q("2.5 mm")),
])
pocket4 = body.newObject("PartDesign::Pocket", "Pocket003")
pocket4.Profile = sketch9
pocket4.Length = 17
pocket4.Reversed = True

sketch10 = body.newObject("Sketcher::SketchObject", "Sketch009")
sketch10.AttachmentSupport = (doc.getObject("XZ_Plane"), [""])
sketch10.MapMode = "FlatFace"
sketch10.AttachmentOffset = App.Placement(V(0, 0, -62.86), App.Rotation())
sketch10.addGeometry([
    Part.LineSegment(V(-15.1, 0, 0), V(-15.1, 25.9, 0)),
    Part.LineSegment(V(-15.1, 25.9, 0), V(15.1, 25.9, 0)),
    Part.LineSegment(V(15.1, 25.9, 0), V(15.1, 0, 0)),
    Part.ArcOfCircle(Part.Circle(V(0, 0, 0), V(0, 0, 1), 15.1), math.radians(180), math.radians(360)),
], False)
sketch10.addConstraint([
    Sketcher.Constraint("Coincident", 0, 2, 1, 1),
    Sketcher.Constraint("Coincident", 1, 2, 2, 1),
    Sketcher.Constraint("Tangent", 2, 2, 3, 2),
    Sketcher.Constraint("Tangent", 3, 1, 0, 1),
    Sketcher.Constraint("Vertical", 0),
    Sketcher.Constraint("Horizontal", 1),
    Sketcher.Constraint("Vertical", 2),
    Sketcher.Constraint("Coincident", 3, 3, -1, 1),
    Sketcher.Constraint("Radius", 3, Q("15.1 mm")),
    Sketcher.Constraint("DistanceY", 0, 1, 0, 2, Q("25.9 mm")),
])
pad6 = body.newObject("PartDesign::Pad", "Pad005")
pad6.Profile = sketch10
pad6.Length = 19
pad6.Reversed = True

doc.recompute()
